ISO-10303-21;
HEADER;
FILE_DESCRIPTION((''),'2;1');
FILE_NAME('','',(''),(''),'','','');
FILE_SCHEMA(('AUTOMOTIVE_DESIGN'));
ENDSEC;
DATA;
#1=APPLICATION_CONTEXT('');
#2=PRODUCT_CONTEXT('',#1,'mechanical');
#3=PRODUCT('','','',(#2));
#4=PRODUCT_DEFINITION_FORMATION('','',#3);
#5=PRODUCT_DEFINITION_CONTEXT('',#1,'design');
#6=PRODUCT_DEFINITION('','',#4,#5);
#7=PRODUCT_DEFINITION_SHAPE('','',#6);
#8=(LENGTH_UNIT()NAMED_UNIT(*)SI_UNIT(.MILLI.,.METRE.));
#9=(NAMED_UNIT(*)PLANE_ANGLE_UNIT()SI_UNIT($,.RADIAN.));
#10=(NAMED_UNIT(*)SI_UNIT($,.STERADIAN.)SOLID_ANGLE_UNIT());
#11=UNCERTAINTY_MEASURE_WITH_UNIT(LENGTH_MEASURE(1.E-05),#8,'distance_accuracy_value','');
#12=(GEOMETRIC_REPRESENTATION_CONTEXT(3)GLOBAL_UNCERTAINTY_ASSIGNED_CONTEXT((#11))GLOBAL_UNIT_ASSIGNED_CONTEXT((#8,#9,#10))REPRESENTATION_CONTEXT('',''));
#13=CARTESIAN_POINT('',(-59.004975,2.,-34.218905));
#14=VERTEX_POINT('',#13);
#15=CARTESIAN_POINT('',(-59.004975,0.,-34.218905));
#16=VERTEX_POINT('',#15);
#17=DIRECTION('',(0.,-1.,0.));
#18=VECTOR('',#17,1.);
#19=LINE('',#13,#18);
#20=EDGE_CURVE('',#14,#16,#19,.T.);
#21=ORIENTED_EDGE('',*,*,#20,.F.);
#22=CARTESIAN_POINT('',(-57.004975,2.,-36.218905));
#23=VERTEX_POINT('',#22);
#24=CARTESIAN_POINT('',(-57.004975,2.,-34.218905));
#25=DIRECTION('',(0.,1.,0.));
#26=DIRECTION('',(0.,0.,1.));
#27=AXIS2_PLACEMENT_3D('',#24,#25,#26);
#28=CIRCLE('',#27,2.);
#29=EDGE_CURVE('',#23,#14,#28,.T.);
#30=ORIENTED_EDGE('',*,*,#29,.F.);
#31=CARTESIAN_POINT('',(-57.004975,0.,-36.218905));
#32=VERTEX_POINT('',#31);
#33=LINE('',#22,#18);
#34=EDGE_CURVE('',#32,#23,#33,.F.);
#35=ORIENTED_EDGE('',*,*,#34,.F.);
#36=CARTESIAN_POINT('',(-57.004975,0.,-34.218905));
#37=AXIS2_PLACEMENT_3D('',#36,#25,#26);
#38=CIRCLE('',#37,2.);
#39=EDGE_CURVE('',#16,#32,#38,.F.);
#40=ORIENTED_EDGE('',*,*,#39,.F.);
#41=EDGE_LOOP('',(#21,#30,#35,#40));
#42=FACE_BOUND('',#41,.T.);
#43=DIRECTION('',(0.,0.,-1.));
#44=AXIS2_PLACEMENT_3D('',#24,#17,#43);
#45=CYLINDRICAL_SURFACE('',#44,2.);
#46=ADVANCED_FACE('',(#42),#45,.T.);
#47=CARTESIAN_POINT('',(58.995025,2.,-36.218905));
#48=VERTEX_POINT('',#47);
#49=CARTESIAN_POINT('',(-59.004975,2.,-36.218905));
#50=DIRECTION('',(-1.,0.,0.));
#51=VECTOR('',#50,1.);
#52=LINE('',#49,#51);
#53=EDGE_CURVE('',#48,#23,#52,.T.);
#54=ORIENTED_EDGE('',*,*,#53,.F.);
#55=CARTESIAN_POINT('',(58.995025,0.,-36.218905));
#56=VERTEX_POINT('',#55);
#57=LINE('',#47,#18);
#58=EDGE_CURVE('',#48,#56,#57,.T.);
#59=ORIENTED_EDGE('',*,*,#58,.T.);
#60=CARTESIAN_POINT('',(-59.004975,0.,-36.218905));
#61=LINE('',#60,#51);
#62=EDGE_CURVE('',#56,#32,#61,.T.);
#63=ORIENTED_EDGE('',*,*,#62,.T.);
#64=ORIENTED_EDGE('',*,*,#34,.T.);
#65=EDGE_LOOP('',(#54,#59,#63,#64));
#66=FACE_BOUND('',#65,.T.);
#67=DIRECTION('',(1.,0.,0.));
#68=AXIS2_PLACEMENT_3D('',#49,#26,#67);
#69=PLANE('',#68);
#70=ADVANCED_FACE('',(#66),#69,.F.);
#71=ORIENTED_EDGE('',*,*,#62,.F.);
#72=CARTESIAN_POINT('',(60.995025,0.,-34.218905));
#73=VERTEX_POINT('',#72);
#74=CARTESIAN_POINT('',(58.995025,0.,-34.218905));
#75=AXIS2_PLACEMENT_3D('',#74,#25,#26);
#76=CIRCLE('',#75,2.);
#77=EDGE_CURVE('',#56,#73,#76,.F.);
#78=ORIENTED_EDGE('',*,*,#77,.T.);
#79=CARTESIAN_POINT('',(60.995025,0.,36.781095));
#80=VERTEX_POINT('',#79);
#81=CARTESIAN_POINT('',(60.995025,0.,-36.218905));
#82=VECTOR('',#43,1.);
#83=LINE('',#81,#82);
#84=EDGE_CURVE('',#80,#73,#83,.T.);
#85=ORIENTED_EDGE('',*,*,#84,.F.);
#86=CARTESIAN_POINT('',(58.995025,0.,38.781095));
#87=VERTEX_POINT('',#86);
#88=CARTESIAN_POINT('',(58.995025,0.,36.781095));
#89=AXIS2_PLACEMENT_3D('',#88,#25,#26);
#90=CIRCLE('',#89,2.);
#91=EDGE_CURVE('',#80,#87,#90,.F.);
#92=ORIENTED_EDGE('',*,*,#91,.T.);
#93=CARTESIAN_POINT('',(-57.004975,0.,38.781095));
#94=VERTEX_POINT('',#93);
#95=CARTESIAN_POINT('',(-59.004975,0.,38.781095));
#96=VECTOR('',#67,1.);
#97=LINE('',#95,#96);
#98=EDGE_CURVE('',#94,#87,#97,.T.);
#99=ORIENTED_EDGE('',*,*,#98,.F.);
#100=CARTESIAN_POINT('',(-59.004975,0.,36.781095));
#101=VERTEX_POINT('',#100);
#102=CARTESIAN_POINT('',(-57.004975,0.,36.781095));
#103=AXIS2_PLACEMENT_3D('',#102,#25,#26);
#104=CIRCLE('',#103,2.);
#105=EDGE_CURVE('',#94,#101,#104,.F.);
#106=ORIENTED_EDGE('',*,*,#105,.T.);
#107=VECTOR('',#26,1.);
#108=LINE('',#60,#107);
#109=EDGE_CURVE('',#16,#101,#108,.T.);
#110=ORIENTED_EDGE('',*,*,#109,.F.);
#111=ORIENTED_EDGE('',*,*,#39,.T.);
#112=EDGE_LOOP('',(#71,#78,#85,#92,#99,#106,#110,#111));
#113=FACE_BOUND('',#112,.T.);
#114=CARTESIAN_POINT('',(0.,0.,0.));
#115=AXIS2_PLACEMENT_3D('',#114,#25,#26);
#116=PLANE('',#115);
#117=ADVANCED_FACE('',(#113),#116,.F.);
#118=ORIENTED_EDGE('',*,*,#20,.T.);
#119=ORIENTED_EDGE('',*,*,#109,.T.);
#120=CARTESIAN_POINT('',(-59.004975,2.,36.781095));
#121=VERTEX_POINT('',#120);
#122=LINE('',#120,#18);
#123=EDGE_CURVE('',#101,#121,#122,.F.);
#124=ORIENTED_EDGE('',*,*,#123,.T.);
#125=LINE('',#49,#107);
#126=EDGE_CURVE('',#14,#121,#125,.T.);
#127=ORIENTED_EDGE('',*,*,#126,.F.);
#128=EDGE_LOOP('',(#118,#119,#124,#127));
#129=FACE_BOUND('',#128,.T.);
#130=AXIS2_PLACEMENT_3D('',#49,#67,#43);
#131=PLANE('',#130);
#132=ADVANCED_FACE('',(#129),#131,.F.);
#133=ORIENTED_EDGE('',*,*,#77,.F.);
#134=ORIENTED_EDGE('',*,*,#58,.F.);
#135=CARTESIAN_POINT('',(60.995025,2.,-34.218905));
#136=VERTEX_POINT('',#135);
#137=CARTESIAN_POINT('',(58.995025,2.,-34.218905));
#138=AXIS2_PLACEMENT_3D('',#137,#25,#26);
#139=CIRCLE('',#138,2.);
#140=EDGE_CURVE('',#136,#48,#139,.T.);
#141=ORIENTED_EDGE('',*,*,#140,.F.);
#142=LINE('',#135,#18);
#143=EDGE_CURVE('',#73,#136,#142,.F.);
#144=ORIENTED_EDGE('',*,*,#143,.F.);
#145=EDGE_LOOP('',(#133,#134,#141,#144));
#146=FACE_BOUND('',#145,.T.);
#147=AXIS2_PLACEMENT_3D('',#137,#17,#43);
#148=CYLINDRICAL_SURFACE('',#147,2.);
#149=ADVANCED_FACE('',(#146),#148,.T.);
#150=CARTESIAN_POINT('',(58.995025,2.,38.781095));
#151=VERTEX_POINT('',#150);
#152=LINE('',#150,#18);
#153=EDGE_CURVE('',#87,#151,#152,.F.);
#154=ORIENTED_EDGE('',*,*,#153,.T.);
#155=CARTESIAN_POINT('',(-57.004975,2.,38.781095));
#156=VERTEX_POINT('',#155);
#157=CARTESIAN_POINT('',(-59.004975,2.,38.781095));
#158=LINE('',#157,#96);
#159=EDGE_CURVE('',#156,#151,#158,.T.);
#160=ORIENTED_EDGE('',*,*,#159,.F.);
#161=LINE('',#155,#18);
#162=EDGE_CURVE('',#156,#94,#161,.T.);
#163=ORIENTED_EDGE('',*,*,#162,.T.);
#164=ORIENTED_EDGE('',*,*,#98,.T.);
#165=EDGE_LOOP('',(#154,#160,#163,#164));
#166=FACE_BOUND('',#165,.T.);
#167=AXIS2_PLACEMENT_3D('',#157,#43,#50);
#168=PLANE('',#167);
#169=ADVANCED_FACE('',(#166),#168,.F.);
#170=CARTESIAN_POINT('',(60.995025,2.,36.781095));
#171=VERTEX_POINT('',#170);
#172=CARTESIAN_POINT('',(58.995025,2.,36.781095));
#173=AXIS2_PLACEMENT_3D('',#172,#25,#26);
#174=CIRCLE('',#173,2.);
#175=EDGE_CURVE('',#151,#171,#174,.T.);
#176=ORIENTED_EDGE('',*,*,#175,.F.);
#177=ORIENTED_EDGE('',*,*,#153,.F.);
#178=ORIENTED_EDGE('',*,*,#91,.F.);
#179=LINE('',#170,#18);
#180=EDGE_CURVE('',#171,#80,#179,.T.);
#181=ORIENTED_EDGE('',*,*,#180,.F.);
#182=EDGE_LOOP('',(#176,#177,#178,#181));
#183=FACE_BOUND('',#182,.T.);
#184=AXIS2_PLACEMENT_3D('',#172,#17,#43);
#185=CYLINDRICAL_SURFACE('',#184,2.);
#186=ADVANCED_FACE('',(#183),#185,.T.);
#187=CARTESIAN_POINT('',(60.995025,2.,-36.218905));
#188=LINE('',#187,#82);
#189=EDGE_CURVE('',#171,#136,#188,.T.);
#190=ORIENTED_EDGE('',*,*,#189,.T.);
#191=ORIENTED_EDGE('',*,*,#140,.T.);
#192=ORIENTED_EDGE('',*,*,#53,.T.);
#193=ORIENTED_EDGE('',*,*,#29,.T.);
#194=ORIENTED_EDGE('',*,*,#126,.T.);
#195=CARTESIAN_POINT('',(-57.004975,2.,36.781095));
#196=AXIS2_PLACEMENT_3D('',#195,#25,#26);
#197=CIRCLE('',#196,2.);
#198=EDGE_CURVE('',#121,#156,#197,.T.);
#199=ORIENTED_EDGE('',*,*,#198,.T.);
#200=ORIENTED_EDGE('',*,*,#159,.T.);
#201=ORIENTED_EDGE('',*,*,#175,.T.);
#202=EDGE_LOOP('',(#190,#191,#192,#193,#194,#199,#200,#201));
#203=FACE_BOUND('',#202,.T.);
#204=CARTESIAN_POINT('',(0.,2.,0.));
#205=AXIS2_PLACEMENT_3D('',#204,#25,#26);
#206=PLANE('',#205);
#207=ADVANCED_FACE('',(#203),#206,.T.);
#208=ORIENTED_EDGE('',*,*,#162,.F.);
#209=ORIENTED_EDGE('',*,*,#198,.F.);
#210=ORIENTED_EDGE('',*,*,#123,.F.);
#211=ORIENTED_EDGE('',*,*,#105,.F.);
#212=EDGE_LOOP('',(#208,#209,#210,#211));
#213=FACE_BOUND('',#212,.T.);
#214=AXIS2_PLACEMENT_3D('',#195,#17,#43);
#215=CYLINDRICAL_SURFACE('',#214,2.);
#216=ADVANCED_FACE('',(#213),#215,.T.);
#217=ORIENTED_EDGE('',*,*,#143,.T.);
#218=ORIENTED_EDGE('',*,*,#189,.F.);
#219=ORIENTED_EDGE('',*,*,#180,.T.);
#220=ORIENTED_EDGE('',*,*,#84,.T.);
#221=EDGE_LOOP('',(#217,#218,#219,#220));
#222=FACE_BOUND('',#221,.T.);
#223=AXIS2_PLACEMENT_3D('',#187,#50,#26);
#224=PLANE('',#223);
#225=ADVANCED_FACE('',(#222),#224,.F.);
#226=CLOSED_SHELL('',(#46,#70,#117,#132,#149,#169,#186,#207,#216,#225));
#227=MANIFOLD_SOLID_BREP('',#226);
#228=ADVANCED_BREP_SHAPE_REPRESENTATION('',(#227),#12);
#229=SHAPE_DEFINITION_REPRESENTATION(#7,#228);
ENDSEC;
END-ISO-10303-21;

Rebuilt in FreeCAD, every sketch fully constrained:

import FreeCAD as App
import Part
import Sketcher

V = App.Vector


def edges_at(feature, points):
    """Names of the edges that pass closest to the given points."""
    edges = feature.Shape.Edges
    near = lambda p: min(range(len(edges)), key=lambda i: edges[i].distToShape(Part.Vertex(*p))[0])
    return sorted({f"Edge{near(p) + 1}" for p in points})


def add_polygon(sketch, points):
    """Adds a closed chain of lines whose ends are joined by coincident constraints."""
    first, n = sketch.GeometryCount, len(points)
    for a, b in zip(points, points[1:] + points[:1]):
        sketch.addGeometry(Part.LineSegment(App.Vector(*a, 0), App.Vector(*b, 0)), False)
    for i in range(n):
        sketch.addConstraint(Sketcher.Constraint("Coincident", first + i, 2, first + (i + 1) % n, 1))

doc = App.newDocument("Part")
body = doc.addObject("PartDesign::Body", "Body")

sketch1 = body.newObject("Sketcher::SketchObject", "Sketch")
sketch1.AttachmentSupport = (doc.getObject("XZ_Plane"), [""])
sketch1.MapMode = "FlatFace"
add_polygon(sketch1, [(-59, -36), (-59, 39), (61, 39), (61, -36)])
sketch1.addConstraint(Sketcher.Constraint("Vertical", 0))
sketch1.addConstraint(Sketcher.Constraint("Horizontal", 1))
sketch1.addConstraint(Sketcher.Constraint("Vertical", 2))
sketch1.addConstraint(Sketcher.Constraint("Horizontal", 3))
sketch1.addConstraint(Sketcher.Constraint("DistanceX", 1, 1, 1, 2, 120.0))
sketch1.addConstraint(Sketcher.Constraint("DistanceY", 0, 1, 0, 2, 75.0))
sketch1.addConstraint(Sketcher.Constraint("DistanceX", 0, 2, -1, 1, 59.004975))
sketch1.addConstraint(Sketcher.Constraint("DistanceY", -1, 1, 0, 2, 38.781095))
pad1 = body.newObject("PartDesign::Pad", "Pad")
pad1.Profile = sketch1
pad1.Length = 2
pad1.Reversed = True
doc.recompute()

fillet = body.newObject("PartDesign::Fillet", "Fillet")
fillet.Base = (pad1, edges_at(pad1, [
    (-59.005, 1, -36.219),
    (60.995, 1, -36.219),
    (60.995, 1, 38.781),
    (-59.005, 1, 38.781),
]))
fillet.Radius = 2

doc.recompute()
